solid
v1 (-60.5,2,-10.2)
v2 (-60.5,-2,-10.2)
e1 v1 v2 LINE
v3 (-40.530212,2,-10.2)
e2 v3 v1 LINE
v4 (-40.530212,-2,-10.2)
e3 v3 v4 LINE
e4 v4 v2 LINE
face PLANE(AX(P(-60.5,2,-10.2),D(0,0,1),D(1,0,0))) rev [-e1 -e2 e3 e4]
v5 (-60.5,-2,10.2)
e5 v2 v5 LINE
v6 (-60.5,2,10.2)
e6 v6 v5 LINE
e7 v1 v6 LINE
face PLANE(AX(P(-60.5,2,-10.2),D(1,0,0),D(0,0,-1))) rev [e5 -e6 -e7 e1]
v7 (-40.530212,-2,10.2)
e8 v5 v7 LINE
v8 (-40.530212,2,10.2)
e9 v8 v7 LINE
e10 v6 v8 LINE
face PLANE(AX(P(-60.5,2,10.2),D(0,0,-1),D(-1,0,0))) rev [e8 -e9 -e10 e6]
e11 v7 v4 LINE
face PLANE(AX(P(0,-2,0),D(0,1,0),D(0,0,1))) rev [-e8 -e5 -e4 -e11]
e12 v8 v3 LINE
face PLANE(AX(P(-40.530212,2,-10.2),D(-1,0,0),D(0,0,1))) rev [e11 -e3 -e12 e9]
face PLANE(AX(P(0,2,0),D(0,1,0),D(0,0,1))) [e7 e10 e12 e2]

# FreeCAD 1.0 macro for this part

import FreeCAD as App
import Part
import Sketcher

V = App.Vector
Q = App.Units.Quantity


def add_polygon(sketch, points):
    """Adds a closed chain of lines whose ends are joined by coincident constraints."""
    first, n = sketch.GeometryCount, len(points)
    for a, b in zip(points, points[1:] + points[:1]):
        sketch.addGeometry(Part.LineSegment(App.Vector(*a, 0), App.Vector(*b, 0)), False)
    for i in range(n):
        sketch.addConstraint(Sketcher.Constraint("Coincident", first + i, 2, first + (i + 1) % n, 1))

doc = App.newDocument("Part")
params = doc.addObject("Spreadsheet::Sheet", "Params")
for row, (alias, value) in enumerate([
    ("sketch1_height", "20.4 mm"),
    ("pad1_length", "4 mm"),
], start=1):
    params.set(f"A{row}", alias)
    params.set(f"B{row}", "=" + value)
    params.setAlias(f"B{row}", alias)

body = doc.addObject("PartDesign::Body", "Body")

# Sketch on XZ plane
sketch1 = doc.addObject("Sketcher::SketchObject", "Sketch")
body.addObject(sketch1)
sketch1.AttachmentSupport = (doc.XZ_Plane, [""])
sketch1.MapMode = "FlatFace"
add_polygon(sketch1, [(-60.5, -10.2), (-60.5, 10.2), (-40.530212, 10.2), (-40.530212, -10.2)])  # lines 0-3
sketch1.addConstraint([
    Sketcher.Constraint("Vertical", 0),
    Sketcher.Constraint("Horizontal", 1),
    Sketcher.Constraint("Vertical", 2),
    Sketcher.Constraint("Horizontal", 3),
    Sketcher.Constraint("DistanceY", 0, 1, 0, 2, Q("20.4 mm")),
    Sketcher.Constraint("DistanceX", 0, 2, -1, 1, Q("60.5 mm")),
    Sketcher.Constraint("DistanceY", -1, 1, 0, 2, Q("10.2 mm")),
    Sketcher.Constraint("DistanceX", 1, 1, 1, 2, Q("19.969788 mm")),
])
sketch1.setExpression("Constraints[8]", "Params.sketch1_height")
pad1 = doc.addObject("PartDesign::Pad", "Pad")
body.addObject(pad1)
pad1.Profile = sketch1
pad1.setExpression("Length", "Params.pad1_length")
pad1.Midplane = True

doc.recompute()
